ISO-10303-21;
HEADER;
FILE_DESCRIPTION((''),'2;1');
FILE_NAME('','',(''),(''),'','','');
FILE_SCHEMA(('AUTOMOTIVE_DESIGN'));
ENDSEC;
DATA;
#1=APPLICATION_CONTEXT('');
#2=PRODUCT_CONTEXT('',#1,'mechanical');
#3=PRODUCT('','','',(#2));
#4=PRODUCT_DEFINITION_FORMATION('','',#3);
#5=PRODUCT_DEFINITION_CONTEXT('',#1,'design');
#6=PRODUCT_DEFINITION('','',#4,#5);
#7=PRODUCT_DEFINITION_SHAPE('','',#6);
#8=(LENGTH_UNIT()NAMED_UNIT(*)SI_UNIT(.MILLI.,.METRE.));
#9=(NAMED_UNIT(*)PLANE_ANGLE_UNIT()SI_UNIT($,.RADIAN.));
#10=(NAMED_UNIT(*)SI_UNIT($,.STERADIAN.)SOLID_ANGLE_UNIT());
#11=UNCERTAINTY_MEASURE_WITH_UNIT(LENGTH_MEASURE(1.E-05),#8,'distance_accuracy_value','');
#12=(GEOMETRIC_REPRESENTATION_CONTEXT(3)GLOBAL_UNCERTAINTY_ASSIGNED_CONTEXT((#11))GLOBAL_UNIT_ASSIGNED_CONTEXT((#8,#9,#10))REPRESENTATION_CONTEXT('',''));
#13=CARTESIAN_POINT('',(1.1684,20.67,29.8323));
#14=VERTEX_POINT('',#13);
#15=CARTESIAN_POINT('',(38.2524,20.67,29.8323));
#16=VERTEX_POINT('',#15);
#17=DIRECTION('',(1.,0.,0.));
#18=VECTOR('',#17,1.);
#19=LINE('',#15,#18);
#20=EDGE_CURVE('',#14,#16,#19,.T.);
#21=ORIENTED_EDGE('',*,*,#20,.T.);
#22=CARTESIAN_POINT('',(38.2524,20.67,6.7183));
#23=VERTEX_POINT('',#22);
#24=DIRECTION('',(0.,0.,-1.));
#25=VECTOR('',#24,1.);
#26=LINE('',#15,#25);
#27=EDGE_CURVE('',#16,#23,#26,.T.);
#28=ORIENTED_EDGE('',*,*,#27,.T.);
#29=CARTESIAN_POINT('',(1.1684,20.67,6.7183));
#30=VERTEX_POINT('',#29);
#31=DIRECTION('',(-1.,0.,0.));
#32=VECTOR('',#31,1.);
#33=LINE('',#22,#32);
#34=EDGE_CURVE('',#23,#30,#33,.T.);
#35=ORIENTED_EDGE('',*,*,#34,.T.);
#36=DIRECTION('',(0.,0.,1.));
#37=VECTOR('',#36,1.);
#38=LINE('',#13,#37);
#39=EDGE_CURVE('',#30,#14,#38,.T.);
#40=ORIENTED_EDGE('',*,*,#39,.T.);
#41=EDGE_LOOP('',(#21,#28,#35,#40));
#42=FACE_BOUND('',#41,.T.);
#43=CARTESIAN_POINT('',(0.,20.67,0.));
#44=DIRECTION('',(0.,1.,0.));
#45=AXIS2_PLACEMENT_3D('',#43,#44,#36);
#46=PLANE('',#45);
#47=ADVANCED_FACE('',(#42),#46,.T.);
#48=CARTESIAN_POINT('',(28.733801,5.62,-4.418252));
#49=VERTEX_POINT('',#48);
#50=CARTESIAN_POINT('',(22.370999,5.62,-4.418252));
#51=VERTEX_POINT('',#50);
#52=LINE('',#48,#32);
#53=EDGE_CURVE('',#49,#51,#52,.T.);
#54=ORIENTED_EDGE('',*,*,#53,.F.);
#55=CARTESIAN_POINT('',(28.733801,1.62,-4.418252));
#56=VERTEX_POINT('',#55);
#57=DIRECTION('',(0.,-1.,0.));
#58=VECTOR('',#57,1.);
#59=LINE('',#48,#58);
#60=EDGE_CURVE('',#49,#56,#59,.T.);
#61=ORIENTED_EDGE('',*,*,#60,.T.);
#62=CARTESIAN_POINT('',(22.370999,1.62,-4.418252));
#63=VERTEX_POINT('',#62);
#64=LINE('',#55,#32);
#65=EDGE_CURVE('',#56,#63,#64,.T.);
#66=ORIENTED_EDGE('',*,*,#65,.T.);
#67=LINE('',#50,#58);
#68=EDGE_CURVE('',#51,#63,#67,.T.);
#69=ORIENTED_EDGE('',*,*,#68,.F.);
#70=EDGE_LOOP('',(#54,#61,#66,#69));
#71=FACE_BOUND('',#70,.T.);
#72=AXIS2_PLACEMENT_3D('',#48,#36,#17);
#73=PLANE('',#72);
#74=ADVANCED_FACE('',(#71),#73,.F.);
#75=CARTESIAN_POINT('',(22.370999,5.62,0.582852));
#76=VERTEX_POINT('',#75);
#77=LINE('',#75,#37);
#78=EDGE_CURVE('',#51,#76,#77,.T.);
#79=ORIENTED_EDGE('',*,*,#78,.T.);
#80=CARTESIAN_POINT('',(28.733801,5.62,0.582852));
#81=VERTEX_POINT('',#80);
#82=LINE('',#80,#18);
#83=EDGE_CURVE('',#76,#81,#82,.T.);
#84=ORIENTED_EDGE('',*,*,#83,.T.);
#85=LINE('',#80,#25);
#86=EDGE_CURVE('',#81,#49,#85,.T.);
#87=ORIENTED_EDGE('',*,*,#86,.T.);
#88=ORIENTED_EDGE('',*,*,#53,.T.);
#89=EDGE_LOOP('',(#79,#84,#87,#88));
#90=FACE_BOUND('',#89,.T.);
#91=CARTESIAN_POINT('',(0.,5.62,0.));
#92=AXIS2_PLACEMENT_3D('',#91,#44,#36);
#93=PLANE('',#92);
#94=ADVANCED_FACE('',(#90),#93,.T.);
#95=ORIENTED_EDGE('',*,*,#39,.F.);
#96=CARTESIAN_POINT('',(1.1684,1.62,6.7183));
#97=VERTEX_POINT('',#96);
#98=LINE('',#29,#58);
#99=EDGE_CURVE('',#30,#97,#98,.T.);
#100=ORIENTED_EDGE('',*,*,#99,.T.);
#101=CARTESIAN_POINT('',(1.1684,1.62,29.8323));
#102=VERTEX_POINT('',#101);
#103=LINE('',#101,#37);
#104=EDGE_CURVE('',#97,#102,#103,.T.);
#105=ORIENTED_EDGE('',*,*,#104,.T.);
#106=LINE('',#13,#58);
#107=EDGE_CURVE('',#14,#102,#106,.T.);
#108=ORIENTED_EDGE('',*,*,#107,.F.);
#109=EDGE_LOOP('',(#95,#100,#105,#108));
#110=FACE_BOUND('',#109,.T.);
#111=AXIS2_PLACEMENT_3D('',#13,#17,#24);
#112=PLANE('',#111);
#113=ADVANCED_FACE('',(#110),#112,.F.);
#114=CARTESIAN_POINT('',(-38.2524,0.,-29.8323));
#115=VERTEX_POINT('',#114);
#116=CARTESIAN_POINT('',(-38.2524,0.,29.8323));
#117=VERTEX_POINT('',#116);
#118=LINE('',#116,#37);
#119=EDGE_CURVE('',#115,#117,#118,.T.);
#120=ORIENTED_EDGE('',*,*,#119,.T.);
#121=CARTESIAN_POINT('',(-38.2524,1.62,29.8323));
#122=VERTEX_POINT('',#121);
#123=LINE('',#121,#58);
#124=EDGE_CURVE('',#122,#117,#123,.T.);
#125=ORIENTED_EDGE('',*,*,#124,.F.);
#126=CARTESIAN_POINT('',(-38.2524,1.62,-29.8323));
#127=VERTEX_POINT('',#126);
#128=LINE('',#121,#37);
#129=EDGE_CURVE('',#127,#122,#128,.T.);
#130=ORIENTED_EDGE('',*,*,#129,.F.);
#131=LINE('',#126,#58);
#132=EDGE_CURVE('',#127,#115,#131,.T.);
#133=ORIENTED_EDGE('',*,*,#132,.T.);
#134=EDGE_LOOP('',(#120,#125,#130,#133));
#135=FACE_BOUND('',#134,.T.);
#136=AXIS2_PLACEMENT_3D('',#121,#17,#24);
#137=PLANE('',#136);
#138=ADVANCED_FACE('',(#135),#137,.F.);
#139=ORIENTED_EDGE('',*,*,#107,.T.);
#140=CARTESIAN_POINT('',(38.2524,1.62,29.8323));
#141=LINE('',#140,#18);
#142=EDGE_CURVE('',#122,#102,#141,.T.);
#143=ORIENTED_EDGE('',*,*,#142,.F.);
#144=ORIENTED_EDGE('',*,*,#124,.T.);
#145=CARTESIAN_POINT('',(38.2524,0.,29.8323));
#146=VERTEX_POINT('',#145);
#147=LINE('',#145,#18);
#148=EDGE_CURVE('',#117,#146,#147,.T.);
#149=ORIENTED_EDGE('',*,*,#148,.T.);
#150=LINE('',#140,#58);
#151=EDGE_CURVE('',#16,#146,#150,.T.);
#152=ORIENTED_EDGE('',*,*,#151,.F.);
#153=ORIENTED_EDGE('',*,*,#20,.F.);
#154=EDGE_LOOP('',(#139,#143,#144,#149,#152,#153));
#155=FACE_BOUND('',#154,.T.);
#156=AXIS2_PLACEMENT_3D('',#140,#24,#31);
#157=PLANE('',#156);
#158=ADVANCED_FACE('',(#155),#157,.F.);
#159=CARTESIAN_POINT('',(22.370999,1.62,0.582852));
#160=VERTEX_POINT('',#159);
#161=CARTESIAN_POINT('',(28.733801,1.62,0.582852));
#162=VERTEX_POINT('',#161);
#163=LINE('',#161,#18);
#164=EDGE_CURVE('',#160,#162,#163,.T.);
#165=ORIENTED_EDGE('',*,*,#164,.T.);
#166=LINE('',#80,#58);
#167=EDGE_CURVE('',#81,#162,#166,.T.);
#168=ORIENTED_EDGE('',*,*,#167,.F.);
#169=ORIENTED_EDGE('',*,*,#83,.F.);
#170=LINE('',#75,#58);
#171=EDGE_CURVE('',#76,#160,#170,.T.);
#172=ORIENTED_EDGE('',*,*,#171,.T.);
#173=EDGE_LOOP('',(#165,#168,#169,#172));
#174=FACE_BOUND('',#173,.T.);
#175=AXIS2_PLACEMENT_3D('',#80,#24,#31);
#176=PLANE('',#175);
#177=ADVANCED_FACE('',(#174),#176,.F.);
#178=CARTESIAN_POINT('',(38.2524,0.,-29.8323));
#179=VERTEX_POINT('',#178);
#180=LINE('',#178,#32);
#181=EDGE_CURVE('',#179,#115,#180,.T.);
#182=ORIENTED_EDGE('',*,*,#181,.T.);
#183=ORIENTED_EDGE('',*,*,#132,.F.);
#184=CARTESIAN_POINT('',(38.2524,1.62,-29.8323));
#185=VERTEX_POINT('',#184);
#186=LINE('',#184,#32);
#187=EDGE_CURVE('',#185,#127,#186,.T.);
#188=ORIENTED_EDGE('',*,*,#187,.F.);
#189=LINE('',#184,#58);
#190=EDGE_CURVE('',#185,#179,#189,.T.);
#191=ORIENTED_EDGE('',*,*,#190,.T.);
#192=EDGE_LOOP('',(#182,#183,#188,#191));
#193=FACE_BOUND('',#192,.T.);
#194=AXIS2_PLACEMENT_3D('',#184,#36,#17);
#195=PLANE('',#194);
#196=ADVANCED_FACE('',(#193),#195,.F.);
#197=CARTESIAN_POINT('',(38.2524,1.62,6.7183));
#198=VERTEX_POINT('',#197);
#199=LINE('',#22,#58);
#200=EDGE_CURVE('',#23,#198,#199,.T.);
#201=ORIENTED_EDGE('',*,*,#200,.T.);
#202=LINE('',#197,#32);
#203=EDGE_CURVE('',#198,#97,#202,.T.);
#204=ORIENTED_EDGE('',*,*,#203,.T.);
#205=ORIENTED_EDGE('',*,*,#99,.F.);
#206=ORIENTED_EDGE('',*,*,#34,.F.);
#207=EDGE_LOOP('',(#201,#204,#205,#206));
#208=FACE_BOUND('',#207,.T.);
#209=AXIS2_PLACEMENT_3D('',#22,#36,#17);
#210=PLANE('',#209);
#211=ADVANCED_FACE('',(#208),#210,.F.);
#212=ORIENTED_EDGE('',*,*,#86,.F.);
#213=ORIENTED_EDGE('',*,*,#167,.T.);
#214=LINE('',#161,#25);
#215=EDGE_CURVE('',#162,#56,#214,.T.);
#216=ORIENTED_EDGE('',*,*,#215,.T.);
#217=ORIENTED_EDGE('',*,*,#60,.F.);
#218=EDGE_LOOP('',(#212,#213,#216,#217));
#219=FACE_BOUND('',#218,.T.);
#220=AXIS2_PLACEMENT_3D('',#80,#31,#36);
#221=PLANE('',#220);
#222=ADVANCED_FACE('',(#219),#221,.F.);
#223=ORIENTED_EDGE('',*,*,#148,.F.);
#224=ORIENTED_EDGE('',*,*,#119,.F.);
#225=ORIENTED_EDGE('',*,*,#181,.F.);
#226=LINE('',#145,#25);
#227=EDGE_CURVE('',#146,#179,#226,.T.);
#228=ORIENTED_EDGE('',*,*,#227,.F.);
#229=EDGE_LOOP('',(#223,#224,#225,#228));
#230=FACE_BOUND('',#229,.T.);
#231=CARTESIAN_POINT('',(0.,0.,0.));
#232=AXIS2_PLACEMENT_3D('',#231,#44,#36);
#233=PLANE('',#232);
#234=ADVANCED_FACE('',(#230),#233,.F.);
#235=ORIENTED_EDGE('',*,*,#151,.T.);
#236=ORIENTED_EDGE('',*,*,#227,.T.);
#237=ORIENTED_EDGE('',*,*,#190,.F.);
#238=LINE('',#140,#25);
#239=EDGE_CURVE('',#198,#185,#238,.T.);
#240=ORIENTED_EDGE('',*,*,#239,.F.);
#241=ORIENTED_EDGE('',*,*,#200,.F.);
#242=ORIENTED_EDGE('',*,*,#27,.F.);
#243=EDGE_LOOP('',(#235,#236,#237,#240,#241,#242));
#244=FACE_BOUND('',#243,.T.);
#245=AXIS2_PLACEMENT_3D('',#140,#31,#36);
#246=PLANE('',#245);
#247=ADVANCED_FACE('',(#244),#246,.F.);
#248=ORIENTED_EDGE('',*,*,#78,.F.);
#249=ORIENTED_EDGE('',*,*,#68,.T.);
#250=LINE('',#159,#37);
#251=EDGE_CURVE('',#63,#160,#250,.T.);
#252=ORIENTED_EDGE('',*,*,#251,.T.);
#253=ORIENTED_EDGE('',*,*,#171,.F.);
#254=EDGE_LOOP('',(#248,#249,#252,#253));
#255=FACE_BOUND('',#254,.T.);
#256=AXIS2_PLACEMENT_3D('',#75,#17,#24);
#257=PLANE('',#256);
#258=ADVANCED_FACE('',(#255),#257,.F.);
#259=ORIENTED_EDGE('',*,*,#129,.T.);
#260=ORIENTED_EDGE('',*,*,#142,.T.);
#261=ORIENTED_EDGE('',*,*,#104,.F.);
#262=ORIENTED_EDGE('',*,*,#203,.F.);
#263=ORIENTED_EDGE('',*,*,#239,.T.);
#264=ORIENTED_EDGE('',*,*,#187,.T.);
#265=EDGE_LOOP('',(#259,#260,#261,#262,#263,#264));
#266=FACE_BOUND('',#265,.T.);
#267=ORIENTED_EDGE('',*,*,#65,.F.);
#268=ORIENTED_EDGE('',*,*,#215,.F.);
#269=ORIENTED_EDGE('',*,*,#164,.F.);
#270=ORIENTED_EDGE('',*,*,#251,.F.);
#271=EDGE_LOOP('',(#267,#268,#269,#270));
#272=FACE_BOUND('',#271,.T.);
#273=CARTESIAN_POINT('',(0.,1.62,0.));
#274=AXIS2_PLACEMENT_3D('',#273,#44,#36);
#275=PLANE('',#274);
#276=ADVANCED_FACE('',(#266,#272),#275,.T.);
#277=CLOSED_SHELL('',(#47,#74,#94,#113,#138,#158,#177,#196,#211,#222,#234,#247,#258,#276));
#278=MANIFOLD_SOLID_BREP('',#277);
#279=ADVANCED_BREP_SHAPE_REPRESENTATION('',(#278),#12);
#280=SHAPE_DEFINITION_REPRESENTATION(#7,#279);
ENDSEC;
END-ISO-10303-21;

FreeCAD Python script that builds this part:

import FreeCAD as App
import Part
import Sketcher
from FreeCAD import Vector
Q = App.Units.Quantity

doc = App.newDocument("Part")
body = doc.addObject("PartDesign::Body", "Body")

# Sketch on XZ plane
sketch1 = body.newObject("Sketcher::SketchObject", "Sketch")
sketch1.AttachmentSupport = (doc.getObject("XZ_Plane"), [""])
sketch1.MapMode = "FlatFace"
sketch1.addGeometry([
    Part.LineSegment(Vector(-38, -30, 0), Vector(-38, 30, 0)),
    Part.LineSegment(Vector(-38, 30, 0), Vector(38, 30, 0)),
    Part.LineSegment(Vector(38, 30, 0), Vector(38, -30, 0)),
    Part.LineSegment(Vector(38, -30, 0), Vector(-38, -30, 0)),
], False)
sketch1.addConstraint([
    Sketcher.Constraint("Coincident", 0, 2, 1, 1),
    Sketcher.Constraint("Coincident", 1, 2, 2, 1),
    Sketcher.Constraint("Coincident", 2, 2, 3, 1),
    Sketcher.Constraint("Coincident", 3, 2, 0, 1),
    Sketcher.Constraint("Vertical", 0),
    Sketcher.Constraint("Horizontal", 1),
    Sketcher.Constraint("Vertical", 2),
    Sketcher.Constraint("Horizontal", 3),
    Sketcher.Constraint("Symmetric", 0, 2, 2, 2, -1, 1),
    Sketcher.Constraint("DistanceX", 1, 1, 1, 2, Q("3.012 in")),
    Sketcher.Constraint("DistanceY", 0, 1, 0, 2, Q("2.349 in")),
])
pad1 = body.newObject("PartDesign::Pad", "Pad")
pad1.Profile = sketch1
pad1.Length = 1.62
pad1.Reversed = True

# Sketch on XZ plane
sketch2 = body.newObject("Sketcher::SketchObject", "Sketch001")
sketch2.AttachmentSupport = (doc.getObject("XZ_Plane"), [""])
sketch2.MapMode = "FlatFace"
sketch2.AttachmentOffset = App.Placement(Vector(0, 0, -1.62), App.Rotation())
sketch2.addGeometry([
    Part.LineSegment(Vector(1, 7, 0), Vector(1, 30, 0)),
    Part.LineSegment(Vector(1, 30, 0), Vector(38, 30, 0)),
    Part.LineSegment(Vector(38, 30, 0), Vector(38, 7, 0)),
    Part.LineSegment(Vector(38, 7, 0), Vector(1, 7, 0)),
], False)
sketch2.addConstraint([
    Sketcher.Constraint("Coincident", 0, 2, 1, 1),
    Sketcher.Constraint("Coincident", 1, 2, 2, 1),
    Sketcher.Constraint("Coincident", 2, 2, 3, 1),
    Sketcher.Constraint("Coincident", 3, 2, 0, 1),
    Sketcher.Constraint("Vertical", 0),
    Sketcher.Constraint("Horizontal", 1),
    Sketcher.Constraint("Vertical", 2),
    Sketcher.Constraint("Horizontal", 3),
    Sketcher.Constraint("DistanceX", 1, 1, 1, 2, Q("1.46 in")),
    Sketcher.Constraint("DistanceY", 0, 1, 0, 2, Q("0.91 in")),
    Sketcher.Constraint("DistanceX", -1, 1, 0, 2, Q("0.046 in")),
    Sketcher.Constraint("DistanceY", -1, 1, 0, 2, Q("1.1745 in")),
])
pad2 = body.newObject("PartDesign::Pad", "Pad001")
pad2.Profile = sketch2
pad2.Length = Q("0.75 in")
pad2.Reversed = True

# Sketch on XZ plane
sketch3 = body.newObject("Sketcher::SketchObject", "Sketch002")
sketch3.AttachmentSupport = (doc.getObject("XZ_Plane"), [""])
sketch3.MapMode = "FlatFace"
sketch3.AttachmentOffset = App.Placement(Vector(0, 0, -1.62), App.Rotation())
sketch3.addGeometry([
    Part.LineSegment(Vector(22, -4, 0), Vector(22, 1, 0)),
    Part.LineSegment(Vector(22, 1, 0), Vector(29, 1, 0)),
    Part.LineSegment(Vector(29, 1, 0), Vector(29, -4, 0)),
    Part.LineSegment(Vector(29, -4, 0), Vector(22, -4, 0)),
], False)
sketch3.addConstraint([
    Sketcher.Constraint("Coincident", 0, 2, 1, 1),
    Sketcher.Constraint("Coincident", 1, 2, 2, 1),
    Sketcher.Constraint("Coincident", 2, 2, 3, 1),
    Sketcher.Constraint("Coincident", 3, 2, 0, 1),
    Sketcher.Constraint("Vertical", 0),
    Sketcher.Constraint("Horizontal", 1),
    Sketcher.Constraint("Vertical", 2),
    Sketcher.Constraint("Horizontal", 3),
    Sketcher.Constraint("DistanceX", 1, 1, 1, 2, Q("6.362802 mm")),
    Sketcher.Constraint("DistanceX", -1, 1, 0, 2, Q("22.370999 mm")),
    Sketcher.Constraint("DistanceY", 0, 1, 0, 2, Q("5.001104 mm")),
    Sketcher.Constraint("DistanceY", -1, 1, 0, 2, Q("0.582852 mm")),
])
pad3 = body.newObject("PartDesign::Pad", "Pad002")
pad3.Profile = sketch3
pad3.Length = 4
pad3.Reversed = True

doc.recompute()
